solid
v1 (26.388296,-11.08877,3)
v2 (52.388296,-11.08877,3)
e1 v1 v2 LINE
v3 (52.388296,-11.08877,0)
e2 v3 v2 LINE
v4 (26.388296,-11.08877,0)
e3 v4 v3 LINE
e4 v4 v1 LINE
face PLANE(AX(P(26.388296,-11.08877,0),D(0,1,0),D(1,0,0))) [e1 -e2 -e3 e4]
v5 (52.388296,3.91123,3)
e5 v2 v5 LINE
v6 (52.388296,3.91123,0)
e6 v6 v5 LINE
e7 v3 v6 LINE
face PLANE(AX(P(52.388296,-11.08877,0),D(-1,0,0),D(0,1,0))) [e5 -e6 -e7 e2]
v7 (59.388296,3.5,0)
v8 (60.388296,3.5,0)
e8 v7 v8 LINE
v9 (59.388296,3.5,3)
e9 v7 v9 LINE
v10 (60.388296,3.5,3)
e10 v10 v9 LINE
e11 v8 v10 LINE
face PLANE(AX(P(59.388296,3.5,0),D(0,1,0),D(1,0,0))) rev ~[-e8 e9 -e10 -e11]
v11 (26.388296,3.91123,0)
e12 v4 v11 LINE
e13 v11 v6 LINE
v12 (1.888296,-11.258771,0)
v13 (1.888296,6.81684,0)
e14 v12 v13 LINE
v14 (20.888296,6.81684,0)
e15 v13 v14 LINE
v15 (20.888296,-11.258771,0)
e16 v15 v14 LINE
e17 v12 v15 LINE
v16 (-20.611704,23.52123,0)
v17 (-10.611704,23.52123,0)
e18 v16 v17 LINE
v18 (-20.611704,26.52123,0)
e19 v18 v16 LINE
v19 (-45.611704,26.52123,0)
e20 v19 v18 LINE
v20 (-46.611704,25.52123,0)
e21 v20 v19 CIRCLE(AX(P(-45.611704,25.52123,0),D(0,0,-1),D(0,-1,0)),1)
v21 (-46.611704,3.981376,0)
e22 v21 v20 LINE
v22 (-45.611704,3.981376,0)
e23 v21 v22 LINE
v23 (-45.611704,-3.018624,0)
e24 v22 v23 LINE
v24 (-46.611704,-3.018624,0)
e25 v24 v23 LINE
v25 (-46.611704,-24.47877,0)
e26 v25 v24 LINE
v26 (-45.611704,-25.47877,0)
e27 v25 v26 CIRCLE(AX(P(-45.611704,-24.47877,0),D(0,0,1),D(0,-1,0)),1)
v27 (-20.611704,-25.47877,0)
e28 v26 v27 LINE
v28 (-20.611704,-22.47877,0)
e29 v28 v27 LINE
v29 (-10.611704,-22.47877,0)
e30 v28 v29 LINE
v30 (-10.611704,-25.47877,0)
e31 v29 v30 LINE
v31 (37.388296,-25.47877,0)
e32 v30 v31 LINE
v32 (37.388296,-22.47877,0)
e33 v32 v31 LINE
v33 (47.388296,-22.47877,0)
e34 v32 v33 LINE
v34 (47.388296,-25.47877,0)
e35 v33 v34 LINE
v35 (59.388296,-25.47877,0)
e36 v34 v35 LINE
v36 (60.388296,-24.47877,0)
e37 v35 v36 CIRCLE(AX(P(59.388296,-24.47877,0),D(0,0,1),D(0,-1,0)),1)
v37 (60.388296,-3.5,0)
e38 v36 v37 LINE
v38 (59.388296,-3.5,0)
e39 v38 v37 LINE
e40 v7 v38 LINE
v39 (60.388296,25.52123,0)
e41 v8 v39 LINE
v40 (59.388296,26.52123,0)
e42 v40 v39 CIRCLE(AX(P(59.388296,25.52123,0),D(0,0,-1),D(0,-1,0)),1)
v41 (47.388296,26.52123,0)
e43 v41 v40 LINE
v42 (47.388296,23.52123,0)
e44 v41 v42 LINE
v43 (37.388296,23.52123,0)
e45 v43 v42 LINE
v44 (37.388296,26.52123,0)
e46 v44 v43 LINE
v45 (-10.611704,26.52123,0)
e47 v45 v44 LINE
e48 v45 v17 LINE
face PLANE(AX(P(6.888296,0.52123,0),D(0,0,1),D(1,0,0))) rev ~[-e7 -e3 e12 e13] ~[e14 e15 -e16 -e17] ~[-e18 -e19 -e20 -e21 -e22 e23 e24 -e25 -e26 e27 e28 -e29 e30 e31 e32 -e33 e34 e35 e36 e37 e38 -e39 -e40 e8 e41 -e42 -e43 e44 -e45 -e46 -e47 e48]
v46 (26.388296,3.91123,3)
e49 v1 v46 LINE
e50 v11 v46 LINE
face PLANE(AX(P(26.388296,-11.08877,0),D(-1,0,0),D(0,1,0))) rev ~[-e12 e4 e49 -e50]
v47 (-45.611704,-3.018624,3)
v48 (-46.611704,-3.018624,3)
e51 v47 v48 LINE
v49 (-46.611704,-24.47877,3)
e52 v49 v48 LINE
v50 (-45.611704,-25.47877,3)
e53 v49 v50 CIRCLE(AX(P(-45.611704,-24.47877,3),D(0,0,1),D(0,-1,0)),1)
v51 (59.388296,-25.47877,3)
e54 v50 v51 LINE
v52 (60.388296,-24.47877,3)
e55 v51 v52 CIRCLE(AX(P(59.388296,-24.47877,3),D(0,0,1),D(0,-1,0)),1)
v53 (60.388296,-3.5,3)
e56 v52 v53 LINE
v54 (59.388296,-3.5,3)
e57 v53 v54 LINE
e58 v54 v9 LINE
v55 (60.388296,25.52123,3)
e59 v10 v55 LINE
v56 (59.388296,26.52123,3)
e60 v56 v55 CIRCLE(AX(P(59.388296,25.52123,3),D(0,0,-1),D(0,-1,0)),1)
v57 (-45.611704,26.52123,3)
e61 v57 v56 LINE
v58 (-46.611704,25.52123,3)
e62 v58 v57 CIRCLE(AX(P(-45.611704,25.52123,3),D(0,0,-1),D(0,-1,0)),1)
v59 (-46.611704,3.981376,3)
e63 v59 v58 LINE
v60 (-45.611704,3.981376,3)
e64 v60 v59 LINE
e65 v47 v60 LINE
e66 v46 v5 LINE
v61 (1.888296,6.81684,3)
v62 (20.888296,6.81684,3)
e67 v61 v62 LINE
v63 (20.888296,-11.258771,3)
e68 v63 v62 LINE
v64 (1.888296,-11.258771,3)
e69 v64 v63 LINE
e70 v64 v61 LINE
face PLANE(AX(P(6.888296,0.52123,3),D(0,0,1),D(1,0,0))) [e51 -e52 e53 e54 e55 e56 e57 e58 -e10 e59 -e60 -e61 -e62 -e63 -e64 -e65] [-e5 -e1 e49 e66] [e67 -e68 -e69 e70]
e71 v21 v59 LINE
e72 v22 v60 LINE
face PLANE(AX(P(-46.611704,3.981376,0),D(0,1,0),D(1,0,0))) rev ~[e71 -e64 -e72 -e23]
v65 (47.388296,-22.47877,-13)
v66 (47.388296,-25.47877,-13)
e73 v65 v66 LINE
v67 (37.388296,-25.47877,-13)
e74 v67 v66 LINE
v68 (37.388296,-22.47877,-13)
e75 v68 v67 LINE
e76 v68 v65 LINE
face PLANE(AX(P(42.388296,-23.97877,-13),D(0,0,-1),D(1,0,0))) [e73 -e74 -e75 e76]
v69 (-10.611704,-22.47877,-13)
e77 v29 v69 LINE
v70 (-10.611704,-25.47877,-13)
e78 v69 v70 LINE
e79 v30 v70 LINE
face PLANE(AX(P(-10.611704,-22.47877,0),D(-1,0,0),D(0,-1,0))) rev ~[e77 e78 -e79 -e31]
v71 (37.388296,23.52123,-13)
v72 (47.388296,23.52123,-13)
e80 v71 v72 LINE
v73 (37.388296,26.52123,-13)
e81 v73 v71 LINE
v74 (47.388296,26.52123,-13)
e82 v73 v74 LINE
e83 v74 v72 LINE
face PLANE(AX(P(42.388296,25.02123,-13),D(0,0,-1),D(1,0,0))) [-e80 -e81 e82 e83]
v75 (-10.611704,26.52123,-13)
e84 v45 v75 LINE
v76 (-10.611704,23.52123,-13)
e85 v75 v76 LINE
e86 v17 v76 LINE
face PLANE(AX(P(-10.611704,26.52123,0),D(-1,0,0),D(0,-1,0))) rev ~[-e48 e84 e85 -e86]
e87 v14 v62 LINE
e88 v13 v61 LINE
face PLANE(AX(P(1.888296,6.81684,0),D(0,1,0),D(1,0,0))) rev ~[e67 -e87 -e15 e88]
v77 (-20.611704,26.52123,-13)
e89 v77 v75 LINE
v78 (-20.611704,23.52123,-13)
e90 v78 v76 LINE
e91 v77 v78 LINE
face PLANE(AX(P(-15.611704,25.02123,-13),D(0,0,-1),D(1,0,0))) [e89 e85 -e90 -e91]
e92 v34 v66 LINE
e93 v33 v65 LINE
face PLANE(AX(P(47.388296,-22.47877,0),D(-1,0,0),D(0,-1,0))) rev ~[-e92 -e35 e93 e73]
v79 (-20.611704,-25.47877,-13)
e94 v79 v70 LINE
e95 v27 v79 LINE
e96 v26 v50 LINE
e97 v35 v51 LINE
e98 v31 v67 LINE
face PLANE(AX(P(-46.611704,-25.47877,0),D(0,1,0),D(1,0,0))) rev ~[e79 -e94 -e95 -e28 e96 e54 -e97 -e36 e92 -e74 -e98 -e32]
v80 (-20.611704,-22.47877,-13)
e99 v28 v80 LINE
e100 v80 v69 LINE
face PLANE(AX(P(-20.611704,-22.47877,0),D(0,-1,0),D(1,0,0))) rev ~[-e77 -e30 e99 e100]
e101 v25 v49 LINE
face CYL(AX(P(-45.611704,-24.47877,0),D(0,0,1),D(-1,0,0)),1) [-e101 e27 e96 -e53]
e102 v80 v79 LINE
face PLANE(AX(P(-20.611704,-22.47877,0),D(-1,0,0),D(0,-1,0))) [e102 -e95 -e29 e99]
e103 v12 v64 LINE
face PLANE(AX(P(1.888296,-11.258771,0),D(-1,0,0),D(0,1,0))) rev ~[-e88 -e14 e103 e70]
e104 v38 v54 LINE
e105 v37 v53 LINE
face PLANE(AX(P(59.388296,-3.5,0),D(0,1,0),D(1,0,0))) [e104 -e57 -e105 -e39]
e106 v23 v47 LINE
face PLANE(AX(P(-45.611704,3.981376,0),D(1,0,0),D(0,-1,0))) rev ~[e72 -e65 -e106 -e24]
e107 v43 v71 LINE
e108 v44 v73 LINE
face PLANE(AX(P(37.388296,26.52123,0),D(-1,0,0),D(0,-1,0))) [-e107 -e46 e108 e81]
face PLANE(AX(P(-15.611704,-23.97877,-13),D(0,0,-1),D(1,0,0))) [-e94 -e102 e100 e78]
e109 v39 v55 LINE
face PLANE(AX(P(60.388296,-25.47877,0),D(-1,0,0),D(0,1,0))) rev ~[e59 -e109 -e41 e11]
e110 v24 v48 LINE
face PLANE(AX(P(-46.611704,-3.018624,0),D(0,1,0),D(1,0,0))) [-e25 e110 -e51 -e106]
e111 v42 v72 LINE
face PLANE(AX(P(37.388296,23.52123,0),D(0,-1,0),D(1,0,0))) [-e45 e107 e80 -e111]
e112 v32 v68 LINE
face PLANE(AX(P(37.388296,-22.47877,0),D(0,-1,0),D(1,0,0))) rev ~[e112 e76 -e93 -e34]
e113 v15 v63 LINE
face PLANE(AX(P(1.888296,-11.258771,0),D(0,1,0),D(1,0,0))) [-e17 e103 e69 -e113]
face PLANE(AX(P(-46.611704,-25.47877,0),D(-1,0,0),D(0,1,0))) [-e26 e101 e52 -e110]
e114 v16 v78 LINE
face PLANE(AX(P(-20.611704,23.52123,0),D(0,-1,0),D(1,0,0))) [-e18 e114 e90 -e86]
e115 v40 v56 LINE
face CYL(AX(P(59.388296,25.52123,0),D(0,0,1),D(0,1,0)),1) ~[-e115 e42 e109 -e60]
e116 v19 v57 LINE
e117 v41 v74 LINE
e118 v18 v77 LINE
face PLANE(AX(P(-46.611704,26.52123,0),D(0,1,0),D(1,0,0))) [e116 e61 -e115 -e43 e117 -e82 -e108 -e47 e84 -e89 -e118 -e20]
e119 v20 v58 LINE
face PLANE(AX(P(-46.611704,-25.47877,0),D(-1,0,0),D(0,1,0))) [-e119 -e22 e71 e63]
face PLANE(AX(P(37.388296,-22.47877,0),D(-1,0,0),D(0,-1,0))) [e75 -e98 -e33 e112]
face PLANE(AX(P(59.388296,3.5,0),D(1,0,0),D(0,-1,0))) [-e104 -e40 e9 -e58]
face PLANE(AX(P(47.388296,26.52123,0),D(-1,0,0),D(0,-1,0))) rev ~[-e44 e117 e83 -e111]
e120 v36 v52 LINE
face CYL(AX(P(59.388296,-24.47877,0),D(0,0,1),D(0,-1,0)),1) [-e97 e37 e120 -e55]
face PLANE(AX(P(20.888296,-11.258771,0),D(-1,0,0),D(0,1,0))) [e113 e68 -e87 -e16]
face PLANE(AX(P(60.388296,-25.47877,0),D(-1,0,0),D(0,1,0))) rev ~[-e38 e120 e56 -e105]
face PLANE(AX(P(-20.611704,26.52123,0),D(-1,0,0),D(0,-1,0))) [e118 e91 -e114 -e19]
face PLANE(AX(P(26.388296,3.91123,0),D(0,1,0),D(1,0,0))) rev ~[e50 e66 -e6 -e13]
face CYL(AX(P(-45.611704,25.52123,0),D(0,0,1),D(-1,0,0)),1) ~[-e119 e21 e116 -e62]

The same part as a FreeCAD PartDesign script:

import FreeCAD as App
import Part
import Sketcher

V = App.Vector
Q = App.Units.Quantity


def edges_at(feature, points):
    """Names of the edges that pass closest to the given points."""
    edges = feature.Shape.Edges
    near = lambda p: min(range(len(edges)), key=lambda i: edges[i].distToShape(Part.Vertex(*p))[0])
    return sorted({f"Edge{near(p) + 1}" for p in points})


def add_polygon(sketch, points):
    """Adds a closed chain of lines whose ends are joined by coincident constraints."""
    first, n = sketch.GeometryCount, len(points)
    for a, b in zip(points, points[1:] + points[:1]):
        sketch.addGeometry(Part.LineSegment(App.Vector(*a, 0), App.Vector(*b, 0)), False)
    for i in range(n):
        sketch.addConstraint(Sketcher.Constraint("Coincident", first + i, 2, first + (i + 1) % n, 1))

doc = App.newDocument("Part")
body = doc.addObject("PartDesign::Body", "Body")

sketch1 = body.newObject("Sketcher::SketchObject", "Sketch")
sketch1.AttachmentSupport = (doc.getObject("XY_Plane"), [""])
sketch1.MapMode = "FlatFace"
add_polygon(sketch1, [(-47, 27), (-47, -25), (60, -25), (60, 27)])
add_polygon(sketch1, [(52, -11), (26, -11), (26, 4), (52, 4)])
add_polygon(sketch1, [(21, -11), (2, -11), (2, 7), (21, 7)])
sketch1.addConstraint([
    Sketcher.Constraint("Vertical", 0),
    Sketcher.Constraint("Horizontal", 1),
    Sketcher.Constraint("Vertical", 2),
    Sketcher.Constraint("Horizontal", 3),
    Sketcher.Constraint("Horizontal", 4),
    Sketcher.Constraint("Vertical", 5),
    Sketcher.Constraint("Horizontal", 6),
    Sketcher.Constraint("Vertical", 7),
    Sketcher.Constraint("Horizontal", 8),
    Sketcher.Constraint("Vertical", 9),
    Sketcher.Constraint("Horizontal", 10),
    Sketcher.Constraint("Vertical", 11),
    Sketcher.Constraint("DistanceX", 1, 1, 1, 2, Q("107 mm")),
    Sketcher.Constraint("DistanceX", 4, 2, 4, 1, Q("26 mm")),
    Sketcher.Constraint("DistanceX", 8, 2, 8, 1, Q("19 mm")),
    Sketcher.Constraint("DistanceY", 0, 2, 0, 1, Q("52 mm")),
    Sketcher.Constraint("DistanceY", 5, 1, 5, 2, Q("15 mm")),
    Sketcher.Constraint("DistanceX", 4, 2, 1, 2, Q("34 mm")),
    Sketcher.Constraint("DistanceX", 8, 2, 4, 2, Q("24.5 mm")),
    Sketcher.Constraint("DistanceY", 1, 2, 4, 2, Q("14.39 mm")),
    Sketcher.Constraint("DistanceY", 8, 2, 4, 2, Q("0.170001 mm")),
    Sketcher.Constraint("DistanceY", 9, 1, 9, 2, Q("18.075611 mm")),
    Sketcher.Constraint("DistanceY", 0, 2, -1, 1, Q("25.47877 mm")),
    Sketcher.Constraint("DistanceX", 0, 2, -1, 1, Q("46.611704 mm")),
])
pad1 = body.newObject("PartDesign::Pad", "Pad")
pad1.Profile = sketch1
pad1.Length = 3
doc.recompute()

fillet = body.newObject("PartDesign::Fillet", "Fillet")
fillet.Base = (pad1, edges_at(pad1, [
    (-46.612, 26.521, 1.5),
    (60.388, 26.521, 1.5),
    (60.388, -25.479, 1.5),
    (-46.612, -25.479, 1.5),
]))
fillet.Radius = 1

sketch2 = body.newObject("Sketcher::SketchObject", "Sketch001")
sketch2.AttachmentSupport = (doc.getObject("XY_Plane"), [""])
sketch2.MapMode = "FlatFace"
add_polygon(sketch2, [(-46.6, -3), (-46.6, 4), (-45.6, 4), (-45.6, -3)])
add_polygon(sketch2, [(59.4, -3.5), (59.4, 3.5), (60.4, 3.5), (60.4, -3.5)])
sketch2.addConstraint([
    Sketcher.Constraint("Vertical", 0),
    Sketcher.Constraint("Horizontal", 1),
    Sketcher.Constraint("Vertical", 2),
    Sketcher.Constraint("Horizontal", 3),
    Sketcher.Constraint("Vertical", 4),
    Sketcher.Constraint("Horizontal", 5),
    Sketcher.Constraint("Vertical", 6),
    Sketcher.Constraint("Horizontal", 7),
    Sketcher.Constraint("Equal", 3, 5),
    Sketcher.Constraint("Equal", 2, 4),
    Sketcher.Constraint("DistanceX", 1, 1, 1, 2, Q("1 mm")),
    Sketcher.Constraint("DistanceY", 0, 1, 0, 2, Q("7 mm")),
    Sketcher.Constraint("DistanceX", 1, 2, 4, 2, Q("105 mm")),
    Sketcher.Constraint("DistanceY", -1, 1, 4, 2, Q("3.5 mm")),
    Sketcher.Constraint("DistanceX", 0, 2, -1, 1, Q("46.611704 mm")),
    Sketcher.Constraint("DistanceY", -1, 1, 0, 2, Q("3.981376 mm")),
])
pocket1 = body.newObject("PartDesign::Pocket", "Pocket")
pocket1.Profile = sketch2
pocket1.Type = "ThroughAll"
pocket1.Reversed = True

sketch3 = body.newObject("Sketcher::SketchObject", "Sketch002")
sketch3.AttachmentSupport = (doc.getObject("XY_Plane"), [""])
sketch3.MapMode = "FlatFace"
add_polygon(sketch3, [(-20.6, -25.5), (-20.6, -22.5), (-10.6, -22.5), (-10.6, -25.5)])
add_polygon(sketch3, [(37.4, -25.5), (37.4, -22.5), (47.4, -22.5), (47.4, -25.5)])
add_polygon(sketch3, [(-20.6, 23.5), (-20.6, 26.5), (-10.6, 26.5), (-10.6, 23.5)])
add_polygon(sketch3, [(37.4, 23.5), (37.4, 26.5), (47.4, 26.5), (47.4, 23.5)])
sketch3.addConstraint([
    Sketcher.Constraint("Vertical", 0),
    Sketcher.Constraint("Horizontal", 1),
    Sketcher.Constraint("Vertical", 2),
    Sketcher.Constraint("Horizontal", 3),
    Sketcher.Constraint("Vertical", 4),
    Sketcher.Constraint("Horizontal", 5),
    Sketcher.Constraint("Vertical", 6),
    Sketcher.Constraint("Horizontal", 7),
    Sketcher.Constraint("Vertical", 8),
    Sketcher.Constraint("Horizontal", 9),
    Sketcher.Constraint("Vertical", 10),
    Sketcher.Constraint("Horizontal", 11),
    Sketcher.Constraint("Vertical", 12),
    Sketcher.Constraint("Horizontal", 13),
    Sketcher.Constraint("Vertical", 14),
    Sketcher.Constraint("Horizontal", 15),
    Sketcher.Constraint("Horizontal", 1, 2, 4, 2),
    Sketcher.Constraint("Horizontal", 3, 2, 6, 2),
    Sketcher.Constraint("Horizontal", 9, 2, 12, 2),
    Sketcher.Constraint("Horizontal", 11, 2, 14, 2),
    Sketcher.Constraint("Vertical", 3, 2, 8, 2),
    Sketcher.Constraint("Vertical", 2, 2, 9, 2),
    Sketcher.Constraint("Vertical", 7, 2, 12, 2),
    Sketcher.Constraint("Vertical", 6, 2, 13, 2),
    Sketcher.Constraint("Equal", 3, 5),
    Sketcher.Constraint("Equal", 6, 8),
    Sketcher.Constraint("DistanceX", 1, 1, 1, 2, Q("10 mm")),
    Sketcher.Constraint("DistanceY", 0, 1, 0, 2, Q("3 mm")),
    Sketcher.Constraint("DistanceX", 1, 2, 4, 2, Q("48 mm")),
    Sketcher.Constraint("DistanceY", 0, 2, 8, 2, Q("49 mm")),
    Sketcher.Constraint("DistanceY", 0, 2, -1, 1, Q("22.47877 mm")),
    Sketcher.Constraint("DistanceX", 0, 2, -1, 1, Q("20.611704 mm")),
])
pad2 = body.newObject("PartDesign::Pad", "Pad001")
pad2.Profile = sketch3
pad2.Length = 13
pad2.Reversed = True

doc.recompute()
